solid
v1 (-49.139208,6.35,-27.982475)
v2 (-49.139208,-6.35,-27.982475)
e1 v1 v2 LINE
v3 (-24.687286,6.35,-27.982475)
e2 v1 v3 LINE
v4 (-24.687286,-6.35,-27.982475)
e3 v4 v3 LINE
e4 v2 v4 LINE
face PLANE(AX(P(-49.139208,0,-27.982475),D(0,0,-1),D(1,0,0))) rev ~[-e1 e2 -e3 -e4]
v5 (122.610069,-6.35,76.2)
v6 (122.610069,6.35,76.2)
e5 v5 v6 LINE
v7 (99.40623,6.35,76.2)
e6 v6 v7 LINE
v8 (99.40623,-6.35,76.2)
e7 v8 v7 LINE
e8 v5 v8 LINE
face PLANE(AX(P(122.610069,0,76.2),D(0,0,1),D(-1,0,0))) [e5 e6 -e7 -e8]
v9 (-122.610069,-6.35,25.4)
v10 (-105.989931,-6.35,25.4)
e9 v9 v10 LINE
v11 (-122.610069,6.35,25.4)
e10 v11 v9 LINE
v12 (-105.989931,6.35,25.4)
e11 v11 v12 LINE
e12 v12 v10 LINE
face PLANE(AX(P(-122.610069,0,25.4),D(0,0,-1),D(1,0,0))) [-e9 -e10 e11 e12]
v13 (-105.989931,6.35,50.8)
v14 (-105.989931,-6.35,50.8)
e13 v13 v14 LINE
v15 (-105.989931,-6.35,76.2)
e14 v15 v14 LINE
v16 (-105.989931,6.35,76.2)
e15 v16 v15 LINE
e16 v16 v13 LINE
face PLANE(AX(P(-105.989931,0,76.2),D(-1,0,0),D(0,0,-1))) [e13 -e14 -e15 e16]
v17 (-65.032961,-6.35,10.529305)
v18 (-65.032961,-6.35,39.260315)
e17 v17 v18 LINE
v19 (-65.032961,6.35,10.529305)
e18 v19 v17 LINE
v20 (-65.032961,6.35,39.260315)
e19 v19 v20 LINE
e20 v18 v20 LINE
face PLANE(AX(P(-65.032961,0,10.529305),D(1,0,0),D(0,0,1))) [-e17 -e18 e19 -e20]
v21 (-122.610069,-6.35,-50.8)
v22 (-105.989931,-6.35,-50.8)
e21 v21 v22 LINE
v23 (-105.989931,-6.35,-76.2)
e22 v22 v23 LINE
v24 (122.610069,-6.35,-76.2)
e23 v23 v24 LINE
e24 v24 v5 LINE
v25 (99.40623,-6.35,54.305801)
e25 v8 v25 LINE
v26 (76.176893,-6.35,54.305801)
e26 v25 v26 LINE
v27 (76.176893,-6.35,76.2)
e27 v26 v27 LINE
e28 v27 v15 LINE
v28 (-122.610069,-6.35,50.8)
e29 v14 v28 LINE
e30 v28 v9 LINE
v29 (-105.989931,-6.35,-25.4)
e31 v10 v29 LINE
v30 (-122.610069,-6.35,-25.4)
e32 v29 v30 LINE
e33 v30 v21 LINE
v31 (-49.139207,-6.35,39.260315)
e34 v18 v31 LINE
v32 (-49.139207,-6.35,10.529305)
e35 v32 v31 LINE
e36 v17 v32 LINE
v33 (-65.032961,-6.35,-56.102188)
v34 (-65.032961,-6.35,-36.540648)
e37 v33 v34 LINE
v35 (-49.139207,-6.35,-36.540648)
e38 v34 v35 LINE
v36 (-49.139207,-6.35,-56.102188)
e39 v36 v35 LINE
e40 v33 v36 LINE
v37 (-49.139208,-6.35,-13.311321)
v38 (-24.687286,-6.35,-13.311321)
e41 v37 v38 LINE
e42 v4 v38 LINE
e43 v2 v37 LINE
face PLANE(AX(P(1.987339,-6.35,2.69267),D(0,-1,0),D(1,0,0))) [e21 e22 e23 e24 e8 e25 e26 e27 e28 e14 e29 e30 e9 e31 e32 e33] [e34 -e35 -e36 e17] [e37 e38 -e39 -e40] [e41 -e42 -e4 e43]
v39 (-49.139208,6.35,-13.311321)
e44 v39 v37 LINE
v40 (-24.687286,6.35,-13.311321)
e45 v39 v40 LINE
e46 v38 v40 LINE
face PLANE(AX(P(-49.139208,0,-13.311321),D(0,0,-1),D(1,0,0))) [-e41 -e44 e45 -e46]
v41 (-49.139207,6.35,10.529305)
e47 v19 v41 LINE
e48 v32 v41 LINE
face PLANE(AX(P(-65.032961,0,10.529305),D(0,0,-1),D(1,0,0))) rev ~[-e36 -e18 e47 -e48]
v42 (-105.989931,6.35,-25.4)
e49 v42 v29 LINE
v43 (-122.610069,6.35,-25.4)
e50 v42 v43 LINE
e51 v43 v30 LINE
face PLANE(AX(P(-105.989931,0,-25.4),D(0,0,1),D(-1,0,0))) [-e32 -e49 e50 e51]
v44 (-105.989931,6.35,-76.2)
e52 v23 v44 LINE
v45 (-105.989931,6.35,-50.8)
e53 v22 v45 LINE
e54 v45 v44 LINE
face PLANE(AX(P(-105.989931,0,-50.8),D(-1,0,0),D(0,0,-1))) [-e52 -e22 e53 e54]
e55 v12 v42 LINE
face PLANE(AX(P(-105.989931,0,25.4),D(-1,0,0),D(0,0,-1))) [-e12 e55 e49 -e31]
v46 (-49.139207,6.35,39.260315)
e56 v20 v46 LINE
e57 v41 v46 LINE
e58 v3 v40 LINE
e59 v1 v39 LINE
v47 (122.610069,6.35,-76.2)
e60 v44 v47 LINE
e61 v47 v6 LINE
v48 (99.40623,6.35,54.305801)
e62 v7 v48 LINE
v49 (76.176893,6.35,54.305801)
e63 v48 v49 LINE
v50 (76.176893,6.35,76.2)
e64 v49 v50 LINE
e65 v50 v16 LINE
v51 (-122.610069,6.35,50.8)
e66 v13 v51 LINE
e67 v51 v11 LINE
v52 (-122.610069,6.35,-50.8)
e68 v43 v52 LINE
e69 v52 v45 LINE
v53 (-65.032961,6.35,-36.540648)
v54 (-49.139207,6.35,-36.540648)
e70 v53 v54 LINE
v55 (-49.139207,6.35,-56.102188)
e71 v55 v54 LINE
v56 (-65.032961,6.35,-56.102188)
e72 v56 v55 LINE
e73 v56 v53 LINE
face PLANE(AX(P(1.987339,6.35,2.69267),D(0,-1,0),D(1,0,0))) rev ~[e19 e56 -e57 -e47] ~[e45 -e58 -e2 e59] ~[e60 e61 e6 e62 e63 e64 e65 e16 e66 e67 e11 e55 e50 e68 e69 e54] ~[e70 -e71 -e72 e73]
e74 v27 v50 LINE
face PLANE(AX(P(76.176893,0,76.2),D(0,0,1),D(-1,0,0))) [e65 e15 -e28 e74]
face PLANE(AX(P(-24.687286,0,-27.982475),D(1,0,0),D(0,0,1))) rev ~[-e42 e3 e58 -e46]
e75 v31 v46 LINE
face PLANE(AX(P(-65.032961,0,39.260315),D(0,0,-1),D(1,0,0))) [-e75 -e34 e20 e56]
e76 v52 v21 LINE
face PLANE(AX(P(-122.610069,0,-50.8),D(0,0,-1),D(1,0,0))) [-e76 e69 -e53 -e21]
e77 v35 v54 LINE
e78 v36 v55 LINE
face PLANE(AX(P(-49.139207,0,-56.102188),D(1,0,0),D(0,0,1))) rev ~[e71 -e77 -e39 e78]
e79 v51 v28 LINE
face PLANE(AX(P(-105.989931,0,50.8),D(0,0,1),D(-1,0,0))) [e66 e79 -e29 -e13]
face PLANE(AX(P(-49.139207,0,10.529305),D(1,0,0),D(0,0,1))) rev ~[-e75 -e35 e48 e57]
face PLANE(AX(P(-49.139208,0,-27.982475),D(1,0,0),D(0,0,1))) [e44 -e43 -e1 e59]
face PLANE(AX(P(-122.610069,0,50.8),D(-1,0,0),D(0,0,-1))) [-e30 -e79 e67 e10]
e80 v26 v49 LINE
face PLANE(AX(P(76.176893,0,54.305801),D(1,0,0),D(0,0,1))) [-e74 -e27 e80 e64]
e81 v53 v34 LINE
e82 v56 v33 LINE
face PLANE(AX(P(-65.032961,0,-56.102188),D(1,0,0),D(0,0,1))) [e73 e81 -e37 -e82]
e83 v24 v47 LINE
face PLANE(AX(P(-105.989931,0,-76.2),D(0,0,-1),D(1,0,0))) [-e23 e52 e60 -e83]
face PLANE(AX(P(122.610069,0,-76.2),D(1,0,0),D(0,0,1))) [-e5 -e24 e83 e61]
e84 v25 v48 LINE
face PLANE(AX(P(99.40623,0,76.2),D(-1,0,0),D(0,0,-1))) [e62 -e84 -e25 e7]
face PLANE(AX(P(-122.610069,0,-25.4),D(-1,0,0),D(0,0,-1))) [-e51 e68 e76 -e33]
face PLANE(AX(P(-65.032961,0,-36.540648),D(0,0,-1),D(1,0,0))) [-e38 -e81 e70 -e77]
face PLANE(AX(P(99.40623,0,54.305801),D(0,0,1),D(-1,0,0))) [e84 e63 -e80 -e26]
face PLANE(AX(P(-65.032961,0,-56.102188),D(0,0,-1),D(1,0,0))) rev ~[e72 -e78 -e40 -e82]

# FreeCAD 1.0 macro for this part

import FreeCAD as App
import Part
import Sketcher
Q = App.Units.Quantity

doc = App.newDocument("Part")
body = doc.addObject("PartDesign::Body", "Body")

# Sketch on XZ plane
sketch1 = body.newObject("Sketcher::SketchObject", "Sketch")
sketch1.AttachmentSupport = (doc.getObject("XZ_Plane"), [""])
sketch1.MapMode = "FlatFace"
sketch1.addGeometry([
    Part.LineSegment(App.Vector(76.176893, 76.2, 0), App.Vector(-105.989931, 76.2, 0)),  # 0
    Part.LineSegment(App.Vector(-105.989931, 76.2, 0), App.Vector(-105.989931, 50.8, 0)),  # 1
    Part.LineSegment(App.Vector(-105.989931, 50.8, 0), App.Vector(-122.610069, 50.8, 0)),  # 2
    Part.LineSegment(App.Vector(-122.610069, 50.8, 0), App.Vector(-122.610069, 25.4, 0)),  # 3
    Part.LineSegment(App.Vector(-122.610069, 25.4, 0), App.Vector(-105.989931, 25.4, 0)),  # 4
    Part.LineSegment(App.Vector(-105.989931, 25.4, 0), App.Vector(-105.989931, -25.4, 0)),  # 5
    Part.LineSegment(App.Vector(-105.989931, -25.4, 0), App.Vector(-122.610069, -25.4, 0)),  # 6
    Part.LineSegment(App.Vector(-122.610069, -25.4, 0), App.Vector(-122.610069, -50.8, 0)),  # 7
    Part.LineSegment(App.Vector(-122.610069, -50.8, 0), App.Vector(-105.989931, -50.8, 0)),  # 8
    Part.LineSegment(App.Vector(-105.989931, -50.8, 0), App.Vector(-105.989931, -76.2, 0)),  # 9
    Part.LineSegment(App.Vector(-105.989931, -76.2, 0), App.Vector(122.610069, -76.2, 0)),  # 10
    Part.LineSegment(App.Vector(122.610069, -76.2, 0), App.Vector(122.610069, 76.2, 0)),  # 11
    Part.LineSegment(App.Vector(122.610069, 76.2, 0), App.Vector(99.40623, 76.2, 0)),  # 12
    Part.LineSegment(App.Vector(99.40623, 76.2, 0), App.Vector(99.40623, 54.305801, 0)),  # 13
    Part.LineSegment(App.Vector(99.40623, 54.305801, 0), App.Vector(76.176893, 54.305801, 0)),  # 14
    Part.LineSegment(App.Vector(76.176893, 54.305801, 0), App.Vector(76.176893, 76.2, 0)),  # 15
    Part.LineSegment(App.Vector(-49.139207, -56.102188, 0), App.Vector(-65.032961, -56.102188, 0)),  # 16
    Part.LineSegment(App.Vector(-65.032961, -56.102188, 0), App.Vector(-65.032961, -36.540648, 0)),  # 17
    Part.LineSegment(App.Vector(-65.032961, -36.540648, 0), App.Vector(-49.139207, -36.540648, 0)),  # 18
    Part.LineSegment(App.Vector(-49.139207, -36.540648, 0), App.Vector(-49.139207, -56.102188, 0)),  # 19
    Part.LineSegment(App.Vector(-24.687286, -27.982475, 0), App.Vector(-49.139208, -27.982475, 0)),  # 20
    Part.LineSegment(App.Vector(-49.139208, -27.982475, 0), App.Vector(-49.139208, -13.311321, 0)),  # 21
    Part.LineSegment(App.Vector(-49.139208, -13.311321, 0), App.Vector(-24.687286, -13.311321, 0)),  # 22
    Part.LineSegment(App.Vector(-24.687286, -13.311321, 0), App.Vector(-24.687286, -27.982475, 0)),  # 23
    Part.LineSegment(App.Vector(-49.139207, 10.529305, 0), App.Vector(-65.032961, 10.529305, 0)),  # 24
    Part.LineSegment(App.Vector(-65.032961, 10.529305, 0), App.Vector(-65.032961, 39.260315, 0)),  # 25
    Part.LineSegment(App.Vector(-65.032961, 39.260315, 0), App.Vector(-49.139207, 39.260315, 0)),  # 26
    Part.LineSegment(App.Vector(-49.139207, 39.260315, 0), App.Vector(-49.139207, 10.529305, 0)),  # 27
], False)
sketch1.addConstraint([
    Sketcher.Constraint("Coincident", 0, 2, 1, 1),
    Sketcher.Constraint("Coincident", 1, 2, 2, 1),
    Sketcher.Constraint("Coincident", 2, 2, 3, 1),
    Sketcher.Constraint("Coincident", 3, 2, 4, 1),
    Sketcher.Constraint("Coincident", 4, 2, 5, 1),
    Sketcher.Constraint("Coincident", 5, 2, 6, 1),
    Sketcher.Constraint("Coincident", 6, 2, 7, 1),
    Sketcher.Constraint("Coincident", 7, 2, 8, 1),
    Sketcher.Constraint("Coincident", 8, 2, 9, 1),
    Sketcher.Constraint("Coincident", 9, 2, 10, 1),
    Sketcher.Constraint("Coincident", 10, 2, 11, 1),
    Sketcher.Constraint("Coincident", 11, 2, 12, 1),
    Sketcher.Constraint("Coincident", 12, 2, 13, 1),
    Sketcher.Constraint("Coincident", 13, 2, 14, 1),
    Sketcher.Constraint("Coincident", 14, 2, 15, 1),
    Sketcher.Constraint("Coincident", 15, 2, 0, 1),
    Sketcher.Constraint("Coincident", 16, 2, 17, 1),
    Sketcher.Constraint("Coincident", 17, 2, 18, 1),
    Sketcher.Constraint("Coincident", 18, 2, 19, 1),
    Sketcher.Constraint("Coincident", 19, 2, 16, 1),
    Sketcher.Constraint("Coincident", 20, 2, 21, 1),
    Sketcher.Constraint("Coincident", 21, 2, 22, 1),
    Sketcher.Constraint("Coincident", 22, 2, 23, 1),
    Sketcher.Constraint("Coincident", 23, 2, 20, 1),
    Sketcher.Constraint("Coincident", 24, 2, 25, 1),
    Sketcher.Constraint("Coincident", 25, 2, 26, 1),
    Sketcher.Constraint("Coincident", 26, 2, 27, 1),
    Sketcher.Constraint("Coincident", 27, 2, 24, 1),
    Sketcher.Constraint("Horizontal", 0),
    Sketcher.Constraint("Vertical", 1),
    Sketcher.Constraint("Horizontal", 2),
    Sketcher.Constraint("Vertical", 3),
    Sketcher.Constraint("Horizontal", 4),
    Sketcher.Constraint("Vertical", 5),
    Sketcher.Constraint("Horizontal", 6),
    Sketcher.Constraint("Vertical", 7),
    Sketcher.Constraint("Horizontal", 8),
    Sketcher.Constraint("Vertical", 9),
    Sketcher.Constraint("Horizontal", 10),
    Sketcher.Constraint("Vertical", 11),
    Sketcher.Constraint("Horizontal", 12),
    Sketcher.Constraint("Vertical", 13),
    Sketcher.Constraint("Horizontal", 14),
    Sketcher.Constraint("Vertical", 15),
    Sketcher.Constraint("Horizontal", 16),
    Sketcher.Constraint("Vertical", 17),
    Sketcher.Constraint("Horizontal", 18),
    Sketcher.Constraint("Vertical", 19),
    Sketcher.Constraint("Horizontal", 20),
    Sketcher.Constraint("Vertical", 21),
    Sketcher.Constraint("Horizontal", 22),
    Sketcher.Constraint("Vertical", 23),
    Sketcher.Constraint("Horizontal", 24),
    Sketcher.Constraint("Vertical", 25),
    Sketcher.Constraint("Horizontal", 26),
    Sketcher.Constraint("Vertical", 27),
    Sketcher.Constraint("Symmetric", 3, 2, 6, 2, -1),
    Sketcher.Constraint("Symmetric", 1, 2, 8, 2, -1),
    Sketcher.Constraint("Horizontal", 0, 2, 11, 2),
    Sketcher.Constraint("Vertical", 1, 2, 4, 2),
    Sketcher.Constraint("Vertical", 19, 2, 20, 2),
    Sketcher.Constraint("Vertical", 17, 2, 24, 2),
    Sketcher.Constraint("Vertical", 21, 2, 26, 2),
    Sketcher.Constraint("Equal", 1, 3),
    Sketcher.Constraint("Equal", 7, 9),
    Sketcher.Constraint("DistanceX", 10, 1, 10, 2, Q("9 in")),
    Sketcher.Constraint("DistanceY", 1, 2, 1, 1, Q("1 in")),
    Sketcher.Constraint("DistanceY", 5, 2, 5, 1, Q("2 in")),
    Sketcher.Constraint("DistanceY", 13, 2, 13, 1, 21.894199),
    Sketcher.Constraint("DistanceX", 12, 2, 12, 1, 23.203839),
    Sketcher.Constraint("DistanceY", 17, 1, 17, 2, 19.56154),
    Sketcher.Constraint("DistanceY", 25, 1, 25, 2, 28.731011),
    Sketcher.Constraint("DistanceX", 0, 2, 0, 1, 182.166824),
    Sketcher.Constraint("DistanceX", 2, 2, 2, 1, 16.620138),
    Sketcher.Constraint("DistanceX", 16, 2, 16, 1, 15.893753),
    Sketcher.Constraint("DistanceX", 20, 2, 20, 1, 24.451922),
    Sketcher.Constraint("DistanceY", 21, 1, 21, 2, 14.671155),
    Sketcher.Constraint("DistanceX", 0, 2, -1, 1, 105.989931),
    Sketcher.Constraint("DistanceX", 16, 2, -1, 1, 65.032961),
    Sketcher.Constraint("DistanceY", 21, 2, -1, 1, 13.311321),
    Sketcher.Constraint("DistanceY", 16, 2, 8, 2, 5.302188),
    Sketcher.Constraint("DistanceY", 20, 2, 24, 2, 38.51178),
])
pad1 = body.newObject("PartDesign::Pad", "Pad")
pad1.Profile = sketch1
pad1.Length = Q("0.5 in")
pad1.Midplane = True

doc.recompute()
